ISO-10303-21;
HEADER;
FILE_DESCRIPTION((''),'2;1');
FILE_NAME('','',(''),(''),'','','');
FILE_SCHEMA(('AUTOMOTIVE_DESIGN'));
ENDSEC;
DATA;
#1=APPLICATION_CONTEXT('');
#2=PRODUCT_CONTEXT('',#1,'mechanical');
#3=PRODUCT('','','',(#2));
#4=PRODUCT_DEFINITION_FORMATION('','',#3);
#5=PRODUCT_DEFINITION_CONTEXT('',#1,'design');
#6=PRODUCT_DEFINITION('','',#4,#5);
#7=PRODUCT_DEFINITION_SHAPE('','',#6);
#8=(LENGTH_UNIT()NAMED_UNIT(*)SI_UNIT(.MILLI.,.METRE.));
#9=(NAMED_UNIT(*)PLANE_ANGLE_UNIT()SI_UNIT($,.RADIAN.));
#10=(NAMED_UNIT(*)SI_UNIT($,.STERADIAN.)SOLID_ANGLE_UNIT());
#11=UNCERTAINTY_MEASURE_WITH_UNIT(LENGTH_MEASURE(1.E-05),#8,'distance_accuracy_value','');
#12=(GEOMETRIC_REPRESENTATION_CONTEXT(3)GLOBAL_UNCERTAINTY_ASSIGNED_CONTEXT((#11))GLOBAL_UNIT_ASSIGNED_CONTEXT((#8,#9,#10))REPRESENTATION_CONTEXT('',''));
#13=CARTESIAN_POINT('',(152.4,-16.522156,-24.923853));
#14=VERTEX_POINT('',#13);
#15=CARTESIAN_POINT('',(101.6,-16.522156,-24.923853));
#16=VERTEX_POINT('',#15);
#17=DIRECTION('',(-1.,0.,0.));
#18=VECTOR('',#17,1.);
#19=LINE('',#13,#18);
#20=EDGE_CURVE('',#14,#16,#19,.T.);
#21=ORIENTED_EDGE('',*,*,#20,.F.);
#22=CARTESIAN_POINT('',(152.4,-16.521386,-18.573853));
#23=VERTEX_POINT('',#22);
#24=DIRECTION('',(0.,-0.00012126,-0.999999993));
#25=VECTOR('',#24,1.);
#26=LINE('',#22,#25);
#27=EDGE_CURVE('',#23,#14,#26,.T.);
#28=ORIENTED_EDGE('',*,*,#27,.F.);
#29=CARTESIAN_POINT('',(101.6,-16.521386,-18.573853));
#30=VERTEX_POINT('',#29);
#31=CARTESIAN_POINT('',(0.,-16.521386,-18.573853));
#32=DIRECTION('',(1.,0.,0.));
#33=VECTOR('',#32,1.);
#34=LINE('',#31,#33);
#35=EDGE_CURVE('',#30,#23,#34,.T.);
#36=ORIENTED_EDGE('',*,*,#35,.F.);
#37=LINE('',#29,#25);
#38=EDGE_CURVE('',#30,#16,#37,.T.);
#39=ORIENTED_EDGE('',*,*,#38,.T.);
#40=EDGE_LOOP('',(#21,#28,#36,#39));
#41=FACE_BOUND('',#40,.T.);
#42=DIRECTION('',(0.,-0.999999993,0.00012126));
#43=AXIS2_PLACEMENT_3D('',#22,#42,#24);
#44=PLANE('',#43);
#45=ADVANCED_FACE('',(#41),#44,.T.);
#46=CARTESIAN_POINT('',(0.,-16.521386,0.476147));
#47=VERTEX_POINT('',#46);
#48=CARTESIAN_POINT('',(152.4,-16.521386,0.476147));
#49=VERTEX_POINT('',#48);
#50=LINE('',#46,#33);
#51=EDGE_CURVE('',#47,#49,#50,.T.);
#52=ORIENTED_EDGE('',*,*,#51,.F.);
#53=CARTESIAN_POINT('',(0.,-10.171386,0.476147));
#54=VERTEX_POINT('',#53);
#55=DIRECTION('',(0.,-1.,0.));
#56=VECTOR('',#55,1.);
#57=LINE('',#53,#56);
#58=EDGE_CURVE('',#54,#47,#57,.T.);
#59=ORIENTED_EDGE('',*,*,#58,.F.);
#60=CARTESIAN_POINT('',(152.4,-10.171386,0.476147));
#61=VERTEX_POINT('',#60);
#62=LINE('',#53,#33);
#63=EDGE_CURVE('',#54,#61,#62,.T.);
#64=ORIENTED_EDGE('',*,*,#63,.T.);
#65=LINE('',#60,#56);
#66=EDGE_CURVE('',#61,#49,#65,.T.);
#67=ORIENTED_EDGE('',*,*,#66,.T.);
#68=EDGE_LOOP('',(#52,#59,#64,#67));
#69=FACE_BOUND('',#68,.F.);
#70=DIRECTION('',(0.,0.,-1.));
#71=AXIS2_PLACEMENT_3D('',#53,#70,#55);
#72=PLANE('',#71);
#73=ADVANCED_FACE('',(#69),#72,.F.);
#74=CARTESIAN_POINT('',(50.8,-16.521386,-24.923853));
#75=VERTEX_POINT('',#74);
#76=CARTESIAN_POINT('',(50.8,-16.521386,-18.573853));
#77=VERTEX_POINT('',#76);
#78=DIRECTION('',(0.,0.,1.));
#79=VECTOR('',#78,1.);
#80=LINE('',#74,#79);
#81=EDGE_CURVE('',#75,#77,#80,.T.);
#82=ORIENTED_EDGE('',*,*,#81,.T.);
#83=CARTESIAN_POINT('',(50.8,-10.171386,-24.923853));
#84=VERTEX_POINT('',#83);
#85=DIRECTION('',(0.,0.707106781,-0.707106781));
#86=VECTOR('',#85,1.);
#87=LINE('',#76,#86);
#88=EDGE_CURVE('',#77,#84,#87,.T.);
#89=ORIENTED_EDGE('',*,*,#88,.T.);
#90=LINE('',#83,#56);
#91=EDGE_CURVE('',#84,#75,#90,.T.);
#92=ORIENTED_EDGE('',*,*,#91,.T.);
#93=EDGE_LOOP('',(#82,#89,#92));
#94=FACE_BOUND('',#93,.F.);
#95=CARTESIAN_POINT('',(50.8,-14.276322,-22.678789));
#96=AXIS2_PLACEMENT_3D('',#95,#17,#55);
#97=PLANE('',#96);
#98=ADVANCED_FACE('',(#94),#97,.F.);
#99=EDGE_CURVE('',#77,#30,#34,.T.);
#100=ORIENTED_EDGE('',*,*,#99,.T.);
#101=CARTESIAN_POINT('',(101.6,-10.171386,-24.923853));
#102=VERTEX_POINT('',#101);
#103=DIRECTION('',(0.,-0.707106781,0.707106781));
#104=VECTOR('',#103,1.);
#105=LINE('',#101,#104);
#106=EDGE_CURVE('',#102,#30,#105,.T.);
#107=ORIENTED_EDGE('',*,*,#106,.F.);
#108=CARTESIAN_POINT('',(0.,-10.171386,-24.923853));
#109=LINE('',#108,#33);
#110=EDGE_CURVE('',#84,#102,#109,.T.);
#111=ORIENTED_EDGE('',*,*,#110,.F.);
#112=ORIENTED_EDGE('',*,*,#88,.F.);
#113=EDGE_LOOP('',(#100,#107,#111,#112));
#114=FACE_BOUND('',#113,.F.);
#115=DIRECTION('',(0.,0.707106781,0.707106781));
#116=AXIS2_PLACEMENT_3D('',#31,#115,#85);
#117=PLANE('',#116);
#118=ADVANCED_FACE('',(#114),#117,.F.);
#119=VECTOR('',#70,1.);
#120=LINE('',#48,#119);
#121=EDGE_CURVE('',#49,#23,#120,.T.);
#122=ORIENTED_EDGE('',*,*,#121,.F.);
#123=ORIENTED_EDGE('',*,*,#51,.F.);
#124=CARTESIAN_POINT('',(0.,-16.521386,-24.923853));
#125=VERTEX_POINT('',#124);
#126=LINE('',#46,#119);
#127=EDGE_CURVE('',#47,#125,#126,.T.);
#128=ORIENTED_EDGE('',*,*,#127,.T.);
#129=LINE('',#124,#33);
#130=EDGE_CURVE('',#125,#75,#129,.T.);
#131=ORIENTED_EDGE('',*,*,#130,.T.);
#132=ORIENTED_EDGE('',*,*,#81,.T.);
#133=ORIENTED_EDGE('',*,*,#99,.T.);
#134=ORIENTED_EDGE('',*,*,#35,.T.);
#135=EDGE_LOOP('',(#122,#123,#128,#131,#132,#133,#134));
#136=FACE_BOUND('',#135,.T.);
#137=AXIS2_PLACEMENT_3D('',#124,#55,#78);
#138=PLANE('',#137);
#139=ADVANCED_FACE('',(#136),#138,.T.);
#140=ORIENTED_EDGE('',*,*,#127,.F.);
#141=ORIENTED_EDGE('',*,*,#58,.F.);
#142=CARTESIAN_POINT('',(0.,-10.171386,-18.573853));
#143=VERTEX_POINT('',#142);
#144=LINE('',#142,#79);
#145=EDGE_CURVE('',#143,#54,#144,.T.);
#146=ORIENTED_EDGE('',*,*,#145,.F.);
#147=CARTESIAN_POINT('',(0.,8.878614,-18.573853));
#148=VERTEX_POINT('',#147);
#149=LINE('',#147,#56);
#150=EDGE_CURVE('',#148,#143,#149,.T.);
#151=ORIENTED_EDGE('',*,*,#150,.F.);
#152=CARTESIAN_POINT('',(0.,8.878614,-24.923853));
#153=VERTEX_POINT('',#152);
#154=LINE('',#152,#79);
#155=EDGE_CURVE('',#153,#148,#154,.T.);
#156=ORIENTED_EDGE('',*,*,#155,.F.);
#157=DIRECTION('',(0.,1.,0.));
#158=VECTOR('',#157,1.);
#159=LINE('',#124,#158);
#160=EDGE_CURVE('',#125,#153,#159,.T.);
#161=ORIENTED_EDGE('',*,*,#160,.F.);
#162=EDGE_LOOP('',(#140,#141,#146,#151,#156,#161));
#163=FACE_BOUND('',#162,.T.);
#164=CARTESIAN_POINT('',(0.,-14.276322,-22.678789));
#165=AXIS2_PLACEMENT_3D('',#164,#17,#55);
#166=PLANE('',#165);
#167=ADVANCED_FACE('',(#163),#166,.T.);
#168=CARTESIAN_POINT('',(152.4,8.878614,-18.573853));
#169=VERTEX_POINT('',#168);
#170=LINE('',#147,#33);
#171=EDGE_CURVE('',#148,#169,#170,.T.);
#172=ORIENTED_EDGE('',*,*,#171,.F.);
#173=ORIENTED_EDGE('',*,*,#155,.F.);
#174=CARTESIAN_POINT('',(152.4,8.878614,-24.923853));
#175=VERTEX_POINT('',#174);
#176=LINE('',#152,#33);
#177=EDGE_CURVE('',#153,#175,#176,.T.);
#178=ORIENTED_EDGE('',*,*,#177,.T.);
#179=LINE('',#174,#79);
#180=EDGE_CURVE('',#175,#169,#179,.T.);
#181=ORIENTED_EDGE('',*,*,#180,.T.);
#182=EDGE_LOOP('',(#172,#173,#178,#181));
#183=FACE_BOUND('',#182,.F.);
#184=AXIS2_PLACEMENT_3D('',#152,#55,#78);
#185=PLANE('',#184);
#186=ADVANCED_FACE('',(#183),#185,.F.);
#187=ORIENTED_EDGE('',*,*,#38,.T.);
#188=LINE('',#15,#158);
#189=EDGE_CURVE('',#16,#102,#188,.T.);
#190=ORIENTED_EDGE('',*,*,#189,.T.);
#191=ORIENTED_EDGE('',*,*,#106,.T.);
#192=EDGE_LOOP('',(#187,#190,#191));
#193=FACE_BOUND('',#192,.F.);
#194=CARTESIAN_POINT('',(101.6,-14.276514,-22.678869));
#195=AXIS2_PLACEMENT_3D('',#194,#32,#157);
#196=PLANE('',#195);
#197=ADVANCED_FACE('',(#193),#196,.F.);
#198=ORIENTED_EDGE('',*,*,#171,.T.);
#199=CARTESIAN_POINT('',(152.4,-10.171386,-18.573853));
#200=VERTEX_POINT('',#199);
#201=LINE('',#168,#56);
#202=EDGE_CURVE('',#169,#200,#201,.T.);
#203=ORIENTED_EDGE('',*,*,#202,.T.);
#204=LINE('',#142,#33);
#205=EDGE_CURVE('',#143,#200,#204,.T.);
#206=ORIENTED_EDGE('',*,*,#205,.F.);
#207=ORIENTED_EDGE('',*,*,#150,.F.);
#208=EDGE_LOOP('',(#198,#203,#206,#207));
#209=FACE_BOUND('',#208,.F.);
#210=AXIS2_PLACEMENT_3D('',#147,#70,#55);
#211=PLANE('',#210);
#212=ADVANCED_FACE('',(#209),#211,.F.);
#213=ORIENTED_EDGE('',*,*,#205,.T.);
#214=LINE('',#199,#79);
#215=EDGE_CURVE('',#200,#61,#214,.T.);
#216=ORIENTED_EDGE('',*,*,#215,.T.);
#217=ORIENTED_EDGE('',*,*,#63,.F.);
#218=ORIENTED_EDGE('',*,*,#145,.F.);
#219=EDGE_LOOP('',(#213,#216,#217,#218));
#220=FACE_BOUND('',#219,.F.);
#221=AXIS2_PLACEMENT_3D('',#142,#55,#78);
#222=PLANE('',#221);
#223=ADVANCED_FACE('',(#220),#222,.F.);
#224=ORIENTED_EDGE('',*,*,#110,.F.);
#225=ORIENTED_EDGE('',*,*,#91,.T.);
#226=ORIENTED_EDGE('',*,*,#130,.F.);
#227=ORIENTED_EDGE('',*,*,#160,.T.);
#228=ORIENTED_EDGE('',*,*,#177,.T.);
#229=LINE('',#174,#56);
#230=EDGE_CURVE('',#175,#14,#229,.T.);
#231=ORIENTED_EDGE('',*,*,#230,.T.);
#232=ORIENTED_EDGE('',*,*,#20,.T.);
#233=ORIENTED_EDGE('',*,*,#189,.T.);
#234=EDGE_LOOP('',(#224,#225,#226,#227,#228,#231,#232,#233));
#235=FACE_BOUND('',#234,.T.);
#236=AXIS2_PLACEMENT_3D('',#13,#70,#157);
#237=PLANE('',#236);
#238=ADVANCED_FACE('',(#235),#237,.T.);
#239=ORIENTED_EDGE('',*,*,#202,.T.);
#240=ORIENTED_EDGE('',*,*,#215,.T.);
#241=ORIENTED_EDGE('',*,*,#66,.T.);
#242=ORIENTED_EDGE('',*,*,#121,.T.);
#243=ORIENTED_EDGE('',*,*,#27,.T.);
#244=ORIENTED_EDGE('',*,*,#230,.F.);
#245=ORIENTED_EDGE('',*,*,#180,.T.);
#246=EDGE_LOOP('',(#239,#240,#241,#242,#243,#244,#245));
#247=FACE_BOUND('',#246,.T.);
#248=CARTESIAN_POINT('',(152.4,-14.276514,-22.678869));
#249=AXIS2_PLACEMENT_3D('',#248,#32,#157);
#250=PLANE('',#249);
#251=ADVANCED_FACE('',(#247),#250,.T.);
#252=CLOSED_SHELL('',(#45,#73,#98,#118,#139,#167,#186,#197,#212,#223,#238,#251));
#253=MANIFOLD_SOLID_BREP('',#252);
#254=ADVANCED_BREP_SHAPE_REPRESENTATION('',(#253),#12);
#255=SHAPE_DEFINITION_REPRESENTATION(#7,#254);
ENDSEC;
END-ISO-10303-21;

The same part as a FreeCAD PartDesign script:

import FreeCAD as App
import Part
import Sketcher
Q = App.Units.Quantity


def add_polygon(sketch, points):
    """Adds a closed chain of lines whose ends are joined by coincident constraints."""
    first, n = sketch.GeometryCount, len(points)
    for a, b in zip(points, points[1:] + points[:1]):
        sketch.addGeometry(Part.LineSegment(App.Vector(*a, 0), App.Vector(*b, 0)), False)
    for i in range(n):
        sketch.addConstraint(Sketcher.Constraint("Coincident", first + i, 2, first + (i + 1) % n, 1))

doc = App.newDocument("Part")
params = doc.addObject("Spreadsheet::Sheet", "Params")
for row, (alias, value) in enumerate([
    ("sketch1_width", "1 in"),
    ("sketch1_width2", "0.25 in"),
    ("pad1_length", "6 in"),
    ("sketch2_width", "0.25 in"),
    ("pocket1_length", "6.08 in"),
    ("sketch3_width", "0.25 in"),
    ("pad2_length", "2 in"),
    ("sketch4_length", "0.25 in"),
    ("pad3_length", "2 in"),
], start=1):
    params.set(f"A{row}", alias)
    params.set(f"B{row}", "=" + value)
    params.setAlias(f"B{row}", alias)

body = doc.addObject("PartDesign::Body", "Body")

# Sketch on YZ plane
sketch1 = body.newObject("Sketcher::SketchObject", "Sketch")
sketch1.AttachmentSupport = (doc.getObject("YZ_Plane"), [""])
sketch1.MapMode = "FlatFace"
add_polygon(sketch1, [(-10.171386, 0.476147), (-16.521386, 0.476147), (-16.521386, -24.923853), (8.878614, -24.923853), (8.878614, -18.573853), (-10.171386, -18.573853)])  # lines 0-5
sketch1.addConstraint([
    Sketcher.Constraint("Horizontal", 0),
    Sketcher.Constraint("Vertical", 1),
    Sketcher.Constraint("Horizontal", 2),
    Sketcher.Constraint("Vertical", 3),
    Sketcher.Constraint("Horizontal", 4),
    Sketcher.Constraint("Vertical", 5),
    Sketcher.Constraint("Equal", 2, 1),
    Sketcher.Constraint("Equal", 0, 3),
    Sketcher.Constraint("DistanceX", 2, 1, 2, 2, Q("1 in")),
    Sketcher.Constraint("DistanceX", 0, 2, 0, 1, Q("0.25 in")),
    Sketcher.Constraint("DistanceX", 0, 2, -1, 1, Q("16.521386 mm")),
    Sketcher.Constraint("DistanceY", -1, 1, 0, 2, Q("0.476147 mm")),
])
sketch1.setExpression("Constraints[14]", "Params.sketch1_width")
sketch1.setExpression("Constraints[15]", "Params.sketch1_width2")
pad1 = body.newObject("PartDesign::Pad", "Pad")
pad1.Profile = sketch1
pad1.setExpression("Length", "Params.pad1_length")

# Sketch on YZ plane
sketch2 = body.newObject("Sketcher::SketchObject", "Sketch001")
sketch2.AttachmentSupport = (doc.getObject("YZ_Plane"), [""])
sketch2.MapMode = "FlatFace"
add_polygon(sketch2, [(-10.171386, -24.923853), (-16.521386, -24.923853), (-16.521386, -18.573853)])  # lines 0-2
sketch2.addConstraint([
    Sketcher.Constraint("Horizontal", 0),
    Sketcher.Constraint("Vertical", 1),
    Sketcher.Constraint("Equal", 0, 1),
    Sketcher.Constraint("DistanceX", 0, 2, 0, 1, Q("0.25 in")),
    Sketcher.Constraint("DistanceX", 0, 2, -1, 1, Q("16.521386 mm")),
    Sketcher.Constraint("DistanceY", 0, 2, -1, 1, Q("24.923853 mm")),
])
sketch2.setExpression("Constraints[6]", "Params.sketch2_width")
pocket1 = body.newObject("PartDesign::Pocket", "Pocket")
pocket1.Profile = sketch2
pocket1.setExpression("Length", "Params.pocket1_length")
pocket1.Reversed = True

# Sketch on YZ plane
sketch3 = body.newObject("Sketcher::SketchObject", "Sketch002")
sketch3.AttachmentSupport = (doc.getObject("YZ_Plane"), [""])
sketch3.MapMode = "FlatFace"
add_polygon(sketch3, [(-16.521386, -24.923853), (-16.521386, -18.573853), (-10.171386, -24.923853)])  # lines 0-2
sketch3.addConstraint([
    Sketcher.Constraint("Vertical", 0),
    Sketcher.Constraint("Horizontal", 2),
    Sketcher.Constraint("Equal", 2, 0),
    Sketcher.Constraint("DistanceX", 2, 2, 2, 1, Q("0.25 in")),
    Sketcher.Constraint("DistanceX", 0, 2, -1, 1, Q("16.521386 mm")),
    Sketcher.Constraint("DistanceY", 0, 2, -1, 1, Q("18.573853 mm")),
])
sketch3.setExpression("Constraints[6]", "Params.sketch3_width")
pad2 = body.newObject("PartDesign::Pad", "Pad001")
pad2.Profile = sketch3
pad2.setExpression("Length", "Params.pad2_length")

# Sketch on YZ plane
sketch4 = body.newObject("Sketcher::SketchObject", "Sketch003")
sketch4.AttachmentSupport = (doc.getObject("YZ_Plane"), [""])
sketch4.MapMode = "FlatFace"
sketch4.AttachmentOffset = App.Placement(App.Vector(0, 0, 6 * 25.4), App.Rotation())
add_polygon(sketch4, [(-16.522156, -24.923853), (-10.171386, -24.923853), (-16.521386, -18.573853)])  # lines 0-2
sketch4.addConstraint([
    Sketcher.Constraint("Horizontal", 0),
    Sketcher.Constraint("Angle", 1, Q("135 deg")),
    Sketcher.Constraint("Distance", 2, Q("0.25 in")),
    Sketcher.Constraint("DistanceX", 0, 1, 0, 2, Q("6.35077 mm")),
    Sketcher.Constraint("DistanceX", 0, 2, -1, 1, Q("10.171386 mm")),
    Sketcher.Constraint("DistanceY", 0, 2, -1, 1, Q("24.923853 mm")),
])
sketch4.setExpression("Constraints[5]", "Params.sketch4_length")
pad3 = body.newObject("PartDesign::Pad", "Pad002")
pad3.Profile = sketch4
pad3.setExpression("Length", "Params.pad3_length")
pad3.Reversed = True

doc.recompute()
